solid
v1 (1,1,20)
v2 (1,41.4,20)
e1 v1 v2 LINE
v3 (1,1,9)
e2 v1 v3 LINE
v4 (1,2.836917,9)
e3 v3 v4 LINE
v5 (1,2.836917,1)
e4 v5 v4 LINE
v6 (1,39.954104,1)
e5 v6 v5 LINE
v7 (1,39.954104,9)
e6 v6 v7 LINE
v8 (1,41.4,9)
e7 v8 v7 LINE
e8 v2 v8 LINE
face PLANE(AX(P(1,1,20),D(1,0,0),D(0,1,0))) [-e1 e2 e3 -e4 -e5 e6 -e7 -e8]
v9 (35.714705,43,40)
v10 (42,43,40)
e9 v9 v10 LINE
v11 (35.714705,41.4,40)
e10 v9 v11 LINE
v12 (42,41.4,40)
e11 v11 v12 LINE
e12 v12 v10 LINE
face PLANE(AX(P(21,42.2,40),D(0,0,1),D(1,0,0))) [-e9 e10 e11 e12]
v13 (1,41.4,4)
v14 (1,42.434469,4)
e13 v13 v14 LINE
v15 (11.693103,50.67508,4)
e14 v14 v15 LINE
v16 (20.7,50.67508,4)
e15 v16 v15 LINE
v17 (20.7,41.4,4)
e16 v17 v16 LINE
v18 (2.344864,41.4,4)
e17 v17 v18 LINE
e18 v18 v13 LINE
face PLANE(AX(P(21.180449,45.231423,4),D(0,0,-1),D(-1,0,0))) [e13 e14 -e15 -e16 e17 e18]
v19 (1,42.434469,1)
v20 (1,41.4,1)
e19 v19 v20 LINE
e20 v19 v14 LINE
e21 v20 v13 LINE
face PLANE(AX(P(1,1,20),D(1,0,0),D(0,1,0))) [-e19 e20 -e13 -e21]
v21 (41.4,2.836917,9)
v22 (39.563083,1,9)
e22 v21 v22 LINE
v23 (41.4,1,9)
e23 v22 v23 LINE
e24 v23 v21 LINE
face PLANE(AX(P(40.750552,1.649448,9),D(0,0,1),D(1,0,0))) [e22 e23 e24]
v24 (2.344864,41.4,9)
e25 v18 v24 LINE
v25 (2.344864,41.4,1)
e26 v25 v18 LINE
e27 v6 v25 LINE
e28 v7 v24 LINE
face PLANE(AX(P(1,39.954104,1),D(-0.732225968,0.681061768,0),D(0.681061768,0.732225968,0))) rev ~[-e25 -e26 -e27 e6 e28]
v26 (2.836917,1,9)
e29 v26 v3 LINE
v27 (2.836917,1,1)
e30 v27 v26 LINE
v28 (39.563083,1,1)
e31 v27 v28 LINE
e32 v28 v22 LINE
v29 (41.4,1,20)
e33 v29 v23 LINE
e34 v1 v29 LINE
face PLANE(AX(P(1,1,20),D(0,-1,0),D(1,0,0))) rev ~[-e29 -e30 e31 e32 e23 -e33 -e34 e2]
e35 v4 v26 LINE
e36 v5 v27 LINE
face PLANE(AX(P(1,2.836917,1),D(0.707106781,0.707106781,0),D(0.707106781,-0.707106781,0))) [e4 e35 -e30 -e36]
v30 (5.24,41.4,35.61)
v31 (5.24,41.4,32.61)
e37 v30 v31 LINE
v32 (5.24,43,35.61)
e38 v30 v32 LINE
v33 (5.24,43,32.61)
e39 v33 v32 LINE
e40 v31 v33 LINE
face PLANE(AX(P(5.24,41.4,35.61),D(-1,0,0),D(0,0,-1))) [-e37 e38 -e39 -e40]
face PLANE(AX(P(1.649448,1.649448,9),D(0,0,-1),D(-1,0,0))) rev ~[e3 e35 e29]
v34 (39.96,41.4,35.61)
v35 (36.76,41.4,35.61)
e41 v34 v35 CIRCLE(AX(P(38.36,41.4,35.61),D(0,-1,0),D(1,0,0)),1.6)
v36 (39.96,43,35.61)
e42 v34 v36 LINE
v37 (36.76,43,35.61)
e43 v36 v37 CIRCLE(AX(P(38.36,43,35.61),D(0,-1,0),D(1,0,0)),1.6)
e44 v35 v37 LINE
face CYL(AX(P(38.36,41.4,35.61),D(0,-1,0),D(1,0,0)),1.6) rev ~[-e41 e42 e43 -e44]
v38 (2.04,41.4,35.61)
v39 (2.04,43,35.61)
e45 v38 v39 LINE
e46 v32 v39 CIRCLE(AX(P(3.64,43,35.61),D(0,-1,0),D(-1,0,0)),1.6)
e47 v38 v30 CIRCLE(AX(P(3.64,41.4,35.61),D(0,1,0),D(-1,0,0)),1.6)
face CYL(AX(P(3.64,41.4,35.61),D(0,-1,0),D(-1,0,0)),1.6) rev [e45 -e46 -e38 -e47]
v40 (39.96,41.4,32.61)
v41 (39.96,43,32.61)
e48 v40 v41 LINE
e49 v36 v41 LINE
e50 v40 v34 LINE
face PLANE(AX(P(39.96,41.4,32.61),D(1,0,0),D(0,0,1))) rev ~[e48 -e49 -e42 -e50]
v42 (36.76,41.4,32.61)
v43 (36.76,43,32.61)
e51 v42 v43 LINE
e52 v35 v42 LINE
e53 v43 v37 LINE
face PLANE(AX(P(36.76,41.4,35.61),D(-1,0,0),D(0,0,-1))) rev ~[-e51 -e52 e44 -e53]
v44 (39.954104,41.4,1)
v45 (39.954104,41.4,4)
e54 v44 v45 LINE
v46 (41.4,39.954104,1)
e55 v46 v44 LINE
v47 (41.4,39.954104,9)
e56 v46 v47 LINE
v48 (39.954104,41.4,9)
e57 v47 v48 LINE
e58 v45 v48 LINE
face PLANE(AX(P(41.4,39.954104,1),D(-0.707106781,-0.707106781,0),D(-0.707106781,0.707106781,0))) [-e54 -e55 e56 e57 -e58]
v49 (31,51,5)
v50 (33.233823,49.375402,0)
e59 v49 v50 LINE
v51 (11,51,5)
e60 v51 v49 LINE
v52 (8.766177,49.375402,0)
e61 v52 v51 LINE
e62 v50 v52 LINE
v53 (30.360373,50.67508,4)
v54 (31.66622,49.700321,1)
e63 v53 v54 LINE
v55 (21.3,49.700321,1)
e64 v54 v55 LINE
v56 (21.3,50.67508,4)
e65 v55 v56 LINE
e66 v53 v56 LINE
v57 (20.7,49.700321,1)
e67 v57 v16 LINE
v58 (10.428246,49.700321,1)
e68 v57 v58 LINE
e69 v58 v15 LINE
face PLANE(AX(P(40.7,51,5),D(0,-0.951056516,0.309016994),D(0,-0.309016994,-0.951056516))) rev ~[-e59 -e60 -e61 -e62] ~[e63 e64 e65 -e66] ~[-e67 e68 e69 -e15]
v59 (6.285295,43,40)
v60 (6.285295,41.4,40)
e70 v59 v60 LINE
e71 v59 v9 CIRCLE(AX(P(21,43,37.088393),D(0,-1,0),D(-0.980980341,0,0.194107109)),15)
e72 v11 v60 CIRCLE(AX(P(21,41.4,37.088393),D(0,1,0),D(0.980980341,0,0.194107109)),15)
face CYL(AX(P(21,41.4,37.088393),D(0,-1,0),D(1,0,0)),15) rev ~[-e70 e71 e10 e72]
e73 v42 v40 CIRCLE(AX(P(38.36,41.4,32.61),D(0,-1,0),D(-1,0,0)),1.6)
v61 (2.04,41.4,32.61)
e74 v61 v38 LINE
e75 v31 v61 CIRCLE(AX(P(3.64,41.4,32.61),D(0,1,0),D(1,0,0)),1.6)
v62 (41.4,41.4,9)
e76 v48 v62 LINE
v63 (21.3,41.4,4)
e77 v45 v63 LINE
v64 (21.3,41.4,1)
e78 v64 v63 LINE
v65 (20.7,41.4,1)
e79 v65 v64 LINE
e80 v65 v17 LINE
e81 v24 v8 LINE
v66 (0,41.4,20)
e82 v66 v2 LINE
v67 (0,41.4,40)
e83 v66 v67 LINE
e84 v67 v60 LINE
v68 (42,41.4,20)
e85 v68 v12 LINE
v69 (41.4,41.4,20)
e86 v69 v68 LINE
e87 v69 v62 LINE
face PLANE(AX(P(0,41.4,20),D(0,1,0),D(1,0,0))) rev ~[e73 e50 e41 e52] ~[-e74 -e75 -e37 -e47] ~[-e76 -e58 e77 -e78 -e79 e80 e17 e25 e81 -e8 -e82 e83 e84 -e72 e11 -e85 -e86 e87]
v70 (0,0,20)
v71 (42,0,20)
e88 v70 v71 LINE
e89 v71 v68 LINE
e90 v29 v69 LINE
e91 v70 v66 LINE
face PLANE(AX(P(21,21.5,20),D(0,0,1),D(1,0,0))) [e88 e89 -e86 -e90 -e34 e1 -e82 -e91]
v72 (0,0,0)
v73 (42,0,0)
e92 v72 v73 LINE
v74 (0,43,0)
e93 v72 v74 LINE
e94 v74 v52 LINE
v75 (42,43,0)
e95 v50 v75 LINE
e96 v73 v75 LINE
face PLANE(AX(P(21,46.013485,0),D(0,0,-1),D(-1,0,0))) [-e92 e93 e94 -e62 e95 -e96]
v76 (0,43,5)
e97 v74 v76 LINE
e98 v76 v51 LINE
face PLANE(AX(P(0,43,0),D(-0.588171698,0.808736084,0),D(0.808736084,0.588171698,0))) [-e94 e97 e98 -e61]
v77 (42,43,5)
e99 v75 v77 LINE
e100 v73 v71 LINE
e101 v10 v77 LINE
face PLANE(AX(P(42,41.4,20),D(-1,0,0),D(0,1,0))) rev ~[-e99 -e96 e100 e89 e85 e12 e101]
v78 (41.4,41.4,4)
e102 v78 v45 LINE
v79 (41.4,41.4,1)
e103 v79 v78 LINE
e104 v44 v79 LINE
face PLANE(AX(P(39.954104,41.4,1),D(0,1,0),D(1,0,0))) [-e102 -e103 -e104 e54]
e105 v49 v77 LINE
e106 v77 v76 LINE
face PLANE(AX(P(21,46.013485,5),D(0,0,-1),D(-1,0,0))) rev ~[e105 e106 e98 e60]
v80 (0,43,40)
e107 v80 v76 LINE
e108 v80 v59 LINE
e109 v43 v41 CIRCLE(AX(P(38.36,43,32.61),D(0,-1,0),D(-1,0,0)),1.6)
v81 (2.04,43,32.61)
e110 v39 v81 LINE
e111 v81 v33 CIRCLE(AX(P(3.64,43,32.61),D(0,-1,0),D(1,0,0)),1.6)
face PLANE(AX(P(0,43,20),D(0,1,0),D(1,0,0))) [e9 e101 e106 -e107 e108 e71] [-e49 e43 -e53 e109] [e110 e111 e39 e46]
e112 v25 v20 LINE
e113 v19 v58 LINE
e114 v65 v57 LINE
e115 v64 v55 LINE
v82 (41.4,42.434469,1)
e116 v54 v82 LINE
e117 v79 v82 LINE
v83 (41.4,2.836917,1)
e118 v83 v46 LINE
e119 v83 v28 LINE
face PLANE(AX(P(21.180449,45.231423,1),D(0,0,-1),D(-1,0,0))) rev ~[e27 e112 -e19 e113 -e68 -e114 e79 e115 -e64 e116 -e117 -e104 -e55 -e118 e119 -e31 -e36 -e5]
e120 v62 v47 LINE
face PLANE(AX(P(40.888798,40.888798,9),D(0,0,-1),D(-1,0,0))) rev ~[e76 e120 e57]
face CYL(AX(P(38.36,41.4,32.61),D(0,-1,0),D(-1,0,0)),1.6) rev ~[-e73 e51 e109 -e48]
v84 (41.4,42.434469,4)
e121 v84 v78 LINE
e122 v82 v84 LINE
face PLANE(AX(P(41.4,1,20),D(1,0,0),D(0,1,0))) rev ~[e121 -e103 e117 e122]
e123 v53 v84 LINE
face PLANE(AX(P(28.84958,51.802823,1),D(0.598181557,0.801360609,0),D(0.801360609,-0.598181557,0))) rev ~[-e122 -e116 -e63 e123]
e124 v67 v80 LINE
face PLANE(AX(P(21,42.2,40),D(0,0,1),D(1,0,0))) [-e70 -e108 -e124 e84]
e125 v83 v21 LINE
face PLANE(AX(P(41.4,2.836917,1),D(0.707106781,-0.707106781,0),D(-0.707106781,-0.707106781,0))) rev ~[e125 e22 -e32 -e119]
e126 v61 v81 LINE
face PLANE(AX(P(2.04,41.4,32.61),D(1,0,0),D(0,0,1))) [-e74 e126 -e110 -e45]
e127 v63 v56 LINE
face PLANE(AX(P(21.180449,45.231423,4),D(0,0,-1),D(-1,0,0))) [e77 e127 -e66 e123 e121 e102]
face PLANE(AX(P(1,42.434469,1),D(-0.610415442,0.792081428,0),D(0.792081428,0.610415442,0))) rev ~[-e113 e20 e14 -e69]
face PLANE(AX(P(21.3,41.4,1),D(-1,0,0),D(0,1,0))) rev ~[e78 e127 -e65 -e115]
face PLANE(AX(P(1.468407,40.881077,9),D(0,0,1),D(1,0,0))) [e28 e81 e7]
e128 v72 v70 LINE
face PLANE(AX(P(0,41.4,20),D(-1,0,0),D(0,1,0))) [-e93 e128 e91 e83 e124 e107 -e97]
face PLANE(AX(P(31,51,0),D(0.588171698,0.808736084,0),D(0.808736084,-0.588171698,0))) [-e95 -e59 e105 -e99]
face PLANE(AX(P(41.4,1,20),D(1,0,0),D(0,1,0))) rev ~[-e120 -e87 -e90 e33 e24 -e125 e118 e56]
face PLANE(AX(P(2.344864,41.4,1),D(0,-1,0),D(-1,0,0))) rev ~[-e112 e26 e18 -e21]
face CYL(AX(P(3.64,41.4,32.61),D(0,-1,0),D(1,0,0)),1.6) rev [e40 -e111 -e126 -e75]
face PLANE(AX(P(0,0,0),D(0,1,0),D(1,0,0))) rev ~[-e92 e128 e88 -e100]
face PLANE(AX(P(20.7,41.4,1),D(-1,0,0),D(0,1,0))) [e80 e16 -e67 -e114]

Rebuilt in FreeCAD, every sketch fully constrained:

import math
import FreeCAD as App
import Part
import Sketcher

V = App.Vector
Q = App.Units.Quantity


def add_polygon(sketch, points):
    """Adds a closed chain of lines whose ends are joined by coincident constraints."""
    first, n = sketch.GeometryCount, len(points)
    for a, b in zip(points, points[1:] + points[:1]):
        sketch.addGeometry(Part.LineSegment(App.Vector(*a, 0), App.Vector(*b, 0)), False)
    for i in range(n):
        sketch.addConstraint(Sketcher.Constraint("Coincident", first + i, 2, first + (i + 1) % n, 1))

doc = App.newDocument("Part")
params = doc.addObject("Spreadsheet::Sheet", "Params")
for row, (alias, value) in enumerate([
    ("sketch1_width", "42 mm"),
    ("sketch1_height", "43 mm"),
    ("pad1_length", "20 mm"),
    ("sketch2_width", "40.4 mm"),
    ("pocket1_length", "19 mm"),
    ("sketch3_width", "42 mm"),
    ("sketch3_width2", "20 mm"),
    ("pad2_length", "5 mm"),
    ("sketch4_width", "40.4 mm"),
    ("pocket2_length", "3 mm"),
    ("pad3_length", "8 mm"),
    ("sketch6_width", "42 mm"),
    ("sketch6_height", "1.6 mm"),
    ("pad4_length", "20 mm"),
    ("sketch7_diameter", "30 mm"),
    ("sketch7_radius", "1.6 mm"),
    ("sketch7_height", "3 mm"),
    ("pocket3_length", "20 mm"),
    ("sketch8_width", "0.6 mm"),
    ("sketch8_height", "9.6 mm"),
    ("pad5_length", "3 mm"),
], start=1):
    params.set(f"A{row}", alias)
    params.set(f"B{row}", "=" + value)
    params.setAlias(f"B{row}", alias)

body = doc.addObject("PartDesign::Body", "Body")

sketch1 = body.newObject("Sketcher::SketchObject", "Sketch")
sketch1.AttachmentSupport = (doc.getObject("XY_Plane"), [""])
sketch1.MapMode = "FlatFace"
add_polygon(sketch1, [(0, 43), (0, 0), (42, 0), (42, 43)])
sketch1.addConstraint([
    Sketcher.Constraint("Vertical", 0),
    Sketcher.Constraint("Horizontal", 1),
    Sketcher.Constraint("Vertical", 2),
    Sketcher.Constraint("Horizontal", 3),
    Sketcher.Constraint("Coincident", 0, 2, -1, 1),
    Sketcher.Constraint("DistanceX", 1, 1, 1, 2, Q("42 mm")),
    Sketcher.Constraint("DistanceY", 0, 2, 0, 1, Q("43 mm")),
])
sketch1.setExpression("Constraints[9]", "Params.sketch1_width")
sketch1.setExpression("Constraints[10]", "Params.sketch1_height")
pad1 = body.newObject("PartDesign::Pad", "Pad")
pad1.Profile = sketch1
pad1.setExpression("Length", "Params.pad1_length")

sketch2 = body.newObject("Sketcher::SketchObject", "Sketch001")
sketch2.AttachmentSupport = (doc.getObject("XY_Plane"), [""])
sketch2.MapMode = "FlatFace"
sketch2.AttachmentOffset = App.Placement(V(0, 0, 20), App.Rotation())
add_polygon(sketch2, [(1, 41.4), (1, 1), (41.4, 1), (41.4, 41.4)])
sketch2.addConstraint([
    Sketcher.Constraint("Vertical", 0),
    Sketcher.Constraint("Horizontal", 1),
    Sketcher.Constraint("Vertical", 2),
    Sketcher.Constraint("Horizontal", 3),
    Sketcher.Constraint("Equal", 3, 0),
    Sketcher.Constraint("DistanceX", 1, 1, 1, 2, Q("40.4 mm")),
    Sketcher.Constraint("DistanceX", -1, 1, 0, 2, Q("1 mm")),
    Sketcher.Constraint("DistanceY", -1, 1, 0, 2, Q("1 mm")),
])
sketch2.setExpression("Constraints[9]", "Params.sketch2_width")
pocket1 = body.newObject("PartDesign::Pocket", "Pocket")
pocket1.Profile = sketch2
pocket1.setExpression("Length", "Params.pocket1_length")

sketch3 = body.newObject("Sketcher::SketchObject", "Sketch002")
sketch3.AttachmentSupport = (doc.getObject("XY_Plane"), [""])
sketch3.MapMode = "FlatFace"
add_polygon(sketch3, [(42, 43), (0, 43), (11, 51), (31, 51)])
sketch3.addConstraint([
    Sketcher.Constraint("Horizontal", 0),
    Sketcher.Constraint("Horizontal", 2),
    Sketcher.Constraint("PointOnObject", 0, 2, -2),
    Sketcher.Constraint("Equal", 1, 3),
    Sketcher.Constraint("DistanceX", 0, 2, 0, 1, Q("42 mm")),
    Sketcher.Constraint("DistanceX", 2, 1, 2, 2, Q("20 mm")),
    Sketcher.Constraint("DistanceY", -1, 1, 0, 2, Q("43 mm")),
    Sketcher.Constraint("DistanceY", -1, 1, 1, 2, Q("51 mm")),
])
sketch3.setExpression("Constraints[8]", "Params.sketch3_width")
sketch3.setExpression("Constraints[9]", "Params.sketch3_width2")
pad2 = body.newObject("PartDesign::Pad", "Pad001")
pad2.Profile = sketch3
pad2.setExpression("Length", "Params.pad2_length")

sketch4 = body.newObject("Sketcher::SketchObject", "Sketch003")
sketch4.AttachmentSupport = (doc.getObject("XY_Plane"), [""])
sketch4.MapMode = "FlatFace"
sketch4.AttachmentOffset = App.Placement(V(0, 0, 1), App.Rotation())
add_polygon(sketch4, [(1, 42.434469), (1, 41.4), (41.4, 41.4), (41.4, 42.434469), (28.84958, 51.802823), (13.156473, 51.802823)])
sketch4.addConstraint([
    Sketcher.Constraint("Vertical", 0),
    Sketcher.Constraint("Horizontal", 1),
    Sketcher.Constraint("Vertical", 2),
    Sketcher.Constraint("Horizontal", 4),
    Sketcher.Constraint("Horizontal", 2, 2, 5, 2),
    Sketcher.Constraint("DistanceX", 1, 1, 1, 2, Q("40.4 mm")),
    Sketcher.Constraint("DistanceX", -1, 1, 0, 2, Q("1 mm")),
    Sketcher.Constraint("DistanceY", -1, 1, 0, 2, Q("41.4 mm")),
    Sketcher.Constraint("DistanceY", 0, 2, 0, 1, Q("1.034469 mm")),
    Sketcher.Constraint("Distance", 3, Q("15.661388 mm")),
    Sketcher.Constraint("DistanceX", 4, 2, 4, 1, Q("15.693107 mm")),
    Sketcher.Constraint("DistanceX", -1, 1, 3, 2, Q("28.84958 mm")),
])
sketch4.setExpression("Constraints[11]", "Params.sketch4_width")
pocket2 = body.newObject("PartDesign::Pocket", "Pocket001")
pocket2.Profile = sketch4
pocket2.setExpression("Length", "Params.pocket2_length")
pocket2.Reversed = True

sketch5 = body.newObject("Sketcher::SketchObject", "Sketch004")
sketch5.AttachmentSupport = (doc.getObject("XY_Plane"), [""])
sketch5.MapMode = "FlatFace"
sketch5.AttachmentOffset = App.Placement(V(0, 0, 1), App.Rotation())
add_polygon(sketch5, [(1, 41.4), (1, 39.954104), (2.344864, 41.4)])
add_polygon(sketch5, [(41.4, 39.954104), (41.4, 41.4), (39.954104, 41.4)])
add_polygon(sketch5, [(41.4, 1), (41.4, 2.836917), (39.563083, 1)])
add_polygon(sketch5, [(1, 2.836917), (1, 1), (2.836917, 1)])
sketch5.addConstraint([
    Sketcher.Constraint("Vertical", 0),
    Sketcher.Constraint("Horizontal", 2),
    Sketcher.Constraint("Vertical", 3),
    Sketcher.Constraint("Horizontal", 4),
    Sketcher.Constraint("Vertical", 6),
    Sketcher.Constraint("Horizontal", 8),
    Sketcher.Constraint("Vertical", 9),
    Sketcher.Constraint("Horizontal", 10),
    Sketcher.Constraint("Perpendicular", 5, 7),
    Sketcher.Constraint("Perpendicular", 7, 11),
    Sketcher.Constraint("Horizontal", 2, 2, 3, 2),
    Sketcher.Constraint("Horizontal", 0, 2, 5, 2),
    Sketcher.Constraint("Horizontal", 8, 2, 9, 2),
    Sketcher.Constraint("Horizontal", 6, 2, 11, 2),
    Sketcher.Constraint("Vertical", 5, 2, 6, 2),
    Sketcher.Constraint("Vertical", 2, 2, 9, 2),
    Sketcher.Constraint("Equal", 8, 10),
    Sketcher.Constraint("DistanceX", -1, 1, 0, 2, Q("1 mm")),
    Sketcher.Constraint("DistanceY", -1, 1, 7, 2, Q("1 mm")),
    Sketcher.Constraint("DistanceY", -1, 1, 1, 2, Q("41.4 mm")),
    Sketcher.Constraint("DistanceX", -1, 1, 3, 2, Q("41.4 mm")),
    Sketcher.Constraint("Distance", 1, Q("1.974658 mm")),
    Sketcher.Constraint("DistanceX", 2, 2, 2, 1, Q("1.344864 mm")),
    Sketcher.Constraint("DistanceX", 8, 1, 8, 2, Q("1.836917 mm")),
])
pad3 = body.newObject("PartDesign::Pad", "Pad002")
pad3.Profile = sketch5
pad3.setExpression("Length", "Params.pad3_length")

sketch6 = body.newObject("Sketcher::SketchObject", "Sketch005")
sketch6.AttachmentSupport = (doc.getObject("XY_Plane"), [""])
sketch6.MapMode = "FlatFace"
sketch6.AttachmentOffset = App.Placement(V(0, 0, 20), App.Rotation())
add_polygon(sketch6, [(0, 43), (0, 41.4), (42, 41.4), (42, 43)])
sketch6.addConstraint([
    Sketcher.Constraint("Vertical", 0),
    Sketcher.Constraint("Horizontal", 1),
    Sketcher.Constraint("Vertical", 2),
    Sketcher.Constraint("Horizontal", 3),
    Sketcher.Constraint("PointOnObject", 0, 2, -2),
    Sketcher.Constraint("DistanceX", 1, 1, 1, 2, Q("42 mm")),
    Sketcher.Constraint("DistanceY", 0, 2, 0, 1, Q("1.6 mm")),
    Sketcher.Constraint("DistanceY", -1, 1, 2, 2, Q("43 mm")),
])
sketch6.setExpression("Constraints[9]", "Params.sketch6_width")
sketch6.setExpression("Constraints[10]", "Params.sketch6_height")
pad4 = body.newObject("PartDesign::Pad", "Pad003")
pad4.Profile = sketch6
pad4.setExpression("Length", "Params.pad4_length")

sketch7 = body.newObject("Sketcher::SketchObject", "Sketch006")
sketch7.AttachmentSupport = (doc.getObject("XZ_Plane"), [""])
sketch7.MapMode = "FlatFace"
sketch7.AttachmentOffset = App.Placement(V(0, 0, -41.4), App.Rotation())
sketch7.addGeometry([
    Part.Circle(V(21, 37.088393, 0), V(0, 0, 1), 15),
    Part.LineSegment(V(2.04, 35.61, 0), V(2.04, 32.61, 0)),
    Part.ArcOfCircle(Part.Circle(V(3.64, 32.61, 0), V(0, 0, 1), 1.6), math.radians(180), math.radians(360)),
    Part.LineSegment(V(5.24, 32.61, 0), V(5.24, 35.61, 0)),
    Part.ArcOfCircle(Part.Circle(V(3.64, 35.61, 0), V(0, 0, 1), 1.6), math.radians(0), math.radians(180)),
    Part.LineSegment(V(39.96, 32.61, 0), V(39.96, 35.61, 0)),
    Part.ArcOfCircle(Part.Circle(V(38.36, 35.61, 0), V(0, 0, 1), 1.6), math.radians(0), math.radians(180)),
    Part.LineSegment(V(36.76, 35.61, 0), V(36.76, 32.61, 0)),
    Part.ArcOfCircle(Part.Circle(V(38.36, 32.61, 0), V(0, 0, 1), 1.6), math.radians(180), math.radians(360)),
], False)
sketch7.addConstraint([
    Sketcher.Constraint("Tangent", 1, 2, 2, 1),
    Sketcher.Constraint("Tangent", 2, 2, 3, 1),
    Sketcher.Constraint("Tangent", 3, 2, 4, 1),
    Sketcher.Constraint("Tangent", 4, 2, 1, 1),
    Sketcher.Constraint("Tangent", 5, 2, 6, 1),
    Sketcher.Constraint("Tangent", 6, 2, 7, 1),
    Sketcher.Constraint("Tangent", 7, 2, 8, 1),
    Sketcher.Constraint("Tangent", 8, 2, 5, 1),
    Sketcher.Constraint("Vertical", 1),
    Sketcher.Constraint("Vertical", 3),
    Sketcher.Constraint("Vertical", 5),
    Sketcher.Constraint("Vertical", 7),
    Sketcher.Constraint("Equal", 4, 6),
    Sketcher.Constraint("Horizontal", 4, 3, 6, 3),
    Sketcher.Constraint("Horizontal", 2, 3, 8, 3),
    Sketcher.Constraint("Diameter", 0, Q("30 mm")),
    Sketcher.Constraint("Radius", 2, Q("1.6 mm")),
    Sketcher.Constraint("DistanceY", 1, 2, 1, 1, Q("3 mm")),
    Sketcher.Constraint("DistanceX", -1, 1, 0, 3, Q("21 mm")),
    Sketcher.Constraint("DistanceX", -1, 1, 2, 3, Q("3.64 mm")),
    Sketcher.Constraint("DistanceY", -1, 1, 2, 3, Q("32.61 mm")),
    Sketcher.Constraint("DistanceX", -1, 1, 6, 3, Q("38.36 mm")),
    Sketcher.Constraint("DistanceY", -1, 1, 0, 3, Q("37.088393 mm")),
])
sketch7.setExpression("Constraints[15]", "Params.sketch7_diameter")
sketch7.setExpression("Constraints[16]", "Params.sketch7_radius")
sketch7.setExpression("Constraints[17]", "Params.sketch7_height")
pocket3 = body.newObject("PartDesign::Pocket", "Pocket002")
pocket3.Profile = sketch7
pocket3.setExpression("Length", "Params.pocket3_length")

sketch8 = body.newObject("Sketcher::SketchObject", "Sketch007")
sketch8.AttachmentSupport = (doc.getObject("XY_Plane"), [""])
sketch8.MapMode = "FlatFace"
sketch8.AttachmentOffset = App.Placement(V(0, 0, 1), App.Rotation())
add_polygon(sketch8, [(20.7, 51), (20.7, 41.4), (21.3, 41.4), (21.3, 51)])
sketch8.addConstraint([
    Sketcher.Constraint("Vertical", 0),
    Sketcher.Constraint("Horizontal", 1),
    Sketcher.Constraint("Vertical", 2),
    Sketcher.Constraint("Horizontal", 3),
    Sketcher.Constraint("DistanceX", 1, 1, 1, 2, Q("0.6 mm")),
    Sketcher.Constraint("DistanceY", 0, 2, 0, 1, Q("9.6 mm")),
    Sketcher.Constraint("DistanceY", -1, 1, 2, 2, Q("51 mm")),
    Sketcher.Constraint("DistanceX", -1, 1, 0, 2, Q("20.7 mm")),
])
sketch8.setExpression("Constraints[8]", "Params.sketch8_width")
sketch8.setExpression("Constraints[9]", "Params.sketch8_height")
pad5 = body.newObject("PartDesign::Pad", "Pad004")
pad5.Profile = sketch8
pad5.setExpression("Length", "Params.pad5_length")

sketch9 = body.newObject("Sketcher::SketchObject", "Sketch008")
sketch9.AttachmentSupport = (doc.getObject("YZ_Plane"), [""])
sketch9.MapMode = "FlatFace"
sketch9.AttachmentOffset = App.Placement(V(0, 0, 20.7), App.Rotation())
add_polygon(sketch9, [(48.389523, -3.034223), (51, 5), (51, -3.034223)])
sketch9.addConstraint([
    Sketcher.Constraint("Vertical", 1),
    Sketcher.Constraint("Horizontal", 2),
    Sketcher.Constraint("Angle", 0, Q("72 deg")),
    Sketcher.Constraint("DistanceX", -1, 1, 0, 2, Q("51 mm")),
    Sketcher.Constraint("DistanceY", -1, 1, 0, 2, Q("5 mm")),
    Sketcher.Constraint("DistanceX", 2, 2, 2, 1, Q("2.610477 mm")),
])
pocket4 = body.newObject("PartDesign::Pocket", "Pocket003")
pocket4.Profile = sketch9
pocket4.Type = "ThroughAll"
pocket4.Midplane = True

doc.recompute()
